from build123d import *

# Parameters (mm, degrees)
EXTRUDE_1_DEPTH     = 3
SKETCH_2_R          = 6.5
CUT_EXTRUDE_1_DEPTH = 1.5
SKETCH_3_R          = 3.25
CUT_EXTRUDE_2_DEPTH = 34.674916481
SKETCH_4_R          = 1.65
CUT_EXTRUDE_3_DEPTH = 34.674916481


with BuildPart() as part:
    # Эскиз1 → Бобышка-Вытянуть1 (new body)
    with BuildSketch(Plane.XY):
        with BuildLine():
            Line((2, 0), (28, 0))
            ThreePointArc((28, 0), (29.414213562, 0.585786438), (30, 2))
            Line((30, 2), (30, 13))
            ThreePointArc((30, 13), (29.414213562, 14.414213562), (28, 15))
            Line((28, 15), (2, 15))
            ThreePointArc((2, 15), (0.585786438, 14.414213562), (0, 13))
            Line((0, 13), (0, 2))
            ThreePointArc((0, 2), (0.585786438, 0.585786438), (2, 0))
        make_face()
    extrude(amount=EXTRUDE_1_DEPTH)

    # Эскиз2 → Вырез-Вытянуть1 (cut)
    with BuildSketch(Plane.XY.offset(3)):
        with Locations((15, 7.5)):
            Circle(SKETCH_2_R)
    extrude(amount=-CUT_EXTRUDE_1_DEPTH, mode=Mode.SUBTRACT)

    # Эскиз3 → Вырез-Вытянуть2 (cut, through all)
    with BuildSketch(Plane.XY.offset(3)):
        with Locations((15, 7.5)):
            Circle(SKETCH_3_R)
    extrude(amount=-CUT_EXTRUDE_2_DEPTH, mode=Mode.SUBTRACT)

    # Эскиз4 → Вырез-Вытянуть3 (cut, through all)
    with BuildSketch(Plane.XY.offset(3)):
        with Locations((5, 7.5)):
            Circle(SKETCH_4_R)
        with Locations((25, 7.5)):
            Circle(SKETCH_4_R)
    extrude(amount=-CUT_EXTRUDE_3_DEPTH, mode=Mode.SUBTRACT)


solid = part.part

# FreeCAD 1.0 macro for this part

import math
import FreeCAD as App
import Part
import Sketcher

doc = App.newDocument("Part")
body = doc.addObject("PartDesign::Body", "Body")

sketch1 = body.newObject("Sketcher::SketchObject", "Sketch")
sketch1.AttachmentSupport = (doc.getObject("XY_Plane"), [""])
sketch1.MapMode = "FlatFace"
sketch1.addGeometry([
    Part.LineSegment(App.Vector(2, 0, 0), App.Vector(28, 0, 0)),
    Part.ArcOfCircle(Part.Circle(App.Vector(28, 2, 0), App.Vector(0, 0, 1), 2), math.radians(-90), math.radians(0)),
    Part.LineSegment(App.Vector(30, 2, 0), App.Vector(30, 13, 0)),
    Part.ArcOfCircle(Part.Circle(App.Vector(28, 13, 0), App.Vector(0, 0, 1), 2), math.radians(0), math.radians(90)),
    Part.LineSegment(App.Vector(28, 15, 0), App.Vector(2, 15, 0)),
    Part.ArcOfCircle(Part.Circle(App.Vector(2, 13, 0), App.Vector(0, 0, 1), 2), math.radians(90), math.radians(180)),
    Part.LineSegment(App.Vector(0, 13, 0), App.Vector(0, 2, 0)),
    Part.ArcOfCircle(Part.Circle(App.Vector(2, 2, 0), App.Vector(0, 0, 1), 2), math.radians(-180), math.radians(-90)),
], False)
sketch1.addConstraint([
    Sketcher.Constraint("Tangent", 0, 2, 1, 1),
    Sketcher.Constraint("Tangent", 1, 2, 2, 1),
    Sketcher.Constraint("Tangent", 2, 2, 3, 1),
    Sketcher.Constraint("Tangent", 3, 2, 4, 1),
    Sketcher.Constraint("Tangent", 4, 2, 5, 1),
    Sketcher.Constraint("Tangent", 5, 2, 6, 1),
    Sketcher.Constraint("Tangent", 6, 2, 7, 1),
    Sketcher.Constraint("Tangent", 7, 2, 0, 1),
    Sketcher.Constraint("Horizontal", 0),
    Sketcher.Constraint("Vertical", 2),
    Sketcher.Constraint("Horizontal", 4),
    Sketcher.Constraint("Vertical", 6),
    Sketcher.Constraint("Equal", 1, 3),
    Sketcher.Constraint("Equal", 3, 5),
    Sketcher.Constraint("Equal", 5, 7),
    Sketcher.Constraint("PointOnObject", 0, 2, -1),
    Sketcher.Constraint("PointOnObject", 5, 2, -2),
    Sketcher.Constraint("Radius", 1, 2.0),
    Sketcher.Constraint("DistanceX", 0, 1, 0, 2, 26.0),
    Sketcher.Constraint("DistanceY", 2, 1, 2, 2, 11.0),
])
pad1 = body.newObject("PartDesign::Pad", "Pad")
pad1.Profile = sketch1
pad1.Length = 3

sketch2 = body.newObject("Sketcher::SketchObject", "Sketch001")
sketch2.AttachmentSupport = (doc.getObject("XY_Plane"), [""])
sketch2.MapMode = "FlatFace"
sketch2.AttachmentOffset = App.Placement(App.Vector(0, 0, 3), App.Rotation())
sketch2.addGeometry(Part.Circle(App.Vector(15, 8, 0), App.Vector(0, 0, 1), 6), False)
sketch2.addConstraint([
    Sketcher.Constraint("Diameter", 0, 13.0),
    Sketcher.Constraint("DistanceX", -1, 1, 0, 3, 15.0),
    Sketcher.Constraint("DistanceY", -1, 1, 0, 3, 7.5),
])
pocket1 = body.newObject("PartDesign::Pocket", "Pocket")
pocket1.Profile = sketch2
pocket1.Length = 1.5

sketch3 = body.newObject("Sketcher::SketchObject", "Sketch002")
sketch3.AttachmentSupport = (doc.getObject("XY_Plane"), [""])
sketch3.MapMode = "FlatFace"
sketch3.AttachmentOffset = App.Placement(App.Vector(0, 0, 3), App.Rotation())
sketch3.addGeometry(Part.Circle(App.Vector(15, 7.5, 0), App.Vector(0, 0, 1), 3.2), False)
sketch3.addConstraint([
    Sketcher.Constraint("Diameter", 0, 6.5),
    Sketcher.Constraint("DistanceX", -1, 1, 0, 3, 15.0),
    Sketcher.Constraint("DistanceY", -1, 1, 0, 3, 7.5),
])
pocket2 = body.newObject("PartDesign::Pocket", "Pocket001")
pocket2.Profile = sketch3
pocket2.Type = "ThroughAll"

sketch4 = body.newObject("Sketcher::SketchObject", "Sketch003")
sketch4.AttachmentSupport = (doc.getObject("XY_Plane"), [""])
sketch4.MapMode = "FlatFace"
sketch4.AttachmentOffset = App.Placement(App.Vector(0, 0, 3), App.Rotation())
sketch4.addGeometry([
    Part.Circle(App.Vector(5, 7.5, 0), App.Vector(0, 0, 1), 1.6),
    Part.Circle(App.Vector(25, 7.5, 0), App.Vector(0, 0, 1), 1.6),
], False)
sketch4.addConstraint([
    Sketcher.Constraint("Equal", 0, 1),
    Sketcher.Constraint("Horizontal", 0, 3, 1, 3),
    Sketcher.Constraint("Diameter", 0, 3.3),
    Sketcher.Constraint("DistanceX", -1, 1, 0, 3, 5.0),
    Sketcher.Constraint("DistanceX", -1, 1, 1, 3, 25.0),
    Sketcher.Constraint("DistanceY", -1, 1, 0, 3, 7.5),
])
pocket3 = body.newObject("PartDesign::Pocket", "Pocket002")
pocket3.Profile = sketch4
pocket3.Type = "ThroughAll"

doc.recompute()
